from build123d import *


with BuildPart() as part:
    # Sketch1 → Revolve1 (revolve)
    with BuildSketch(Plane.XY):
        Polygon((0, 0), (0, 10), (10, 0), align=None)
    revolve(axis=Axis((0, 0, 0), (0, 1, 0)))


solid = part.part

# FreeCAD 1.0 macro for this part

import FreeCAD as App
import Part
import Sketcher
Q = App.Units.Quantity


def add_polygon(sketch, points):
    """Adds a closed chain of lines whose ends are joined by coincident constraints."""
    first, n = sketch.GeometryCount, len(points)
    for a, b in zip(points, points[1:] + points[:1]):
        sketch.addGeometry(Part.LineSegment(App.Vector(*a, 0), App.Vector(*b, 0)), False)
    for i in range(n):
        sketch.addConstraint(Sketcher.Constraint("Coincident", first + i, 2, first + (i + 1) % n, 1))

doc = App.newDocument("Part")
params = doc.addObject("Spreadsheet::Sheet", "Params")
for row, (alias, value) in enumerate([
    ("sketch1_width", "10 mm"),
    ("revolution_angle", "360 deg"),
], start=1):
    params.set(f"A{row}", alias)
    params.set(f"B{row}", "=" + value)
    params.setAlias(f"B{row}", alias)

body = doc.addObject("PartDesign::Body", "Body")

# Sketch on XY plane
sketch1 = body.newObject("Sketcher::SketchObject", "Sketch")
sketch1.AttachmentSupport = (doc.getObject("XY_Plane"), [""])
sketch1.MapMode = "FlatFace"
add_polygon(sketch1, [(0, 10), (0, 0), (10, 0)])  # lines 0-2
sketch1.addConstraint([
    Sketcher.Constraint("Vertical", 0),
    Sketcher.Constraint("Horizontal", 1),
    Sketcher.Constraint("Coincident", 0, 2, -1, 1),
    Sketcher.Constraint("Equal", 1, 0),
    Sketcher.Constraint("DistanceX", 1, 1, 1, 2, Q("10 mm")),
])
sketch1.setExpression("Constraints[7]", "Params.sketch1_width")
revolution = body.newObject("PartDesign::Revolution", "Revolution")
revolution.Profile = sketch1
revolution.ReferenceAxis = (sketch1, ["V_Axis"])
revolution.setExpression("Angle", "Params.revolution_angle")

doc.recompute()
